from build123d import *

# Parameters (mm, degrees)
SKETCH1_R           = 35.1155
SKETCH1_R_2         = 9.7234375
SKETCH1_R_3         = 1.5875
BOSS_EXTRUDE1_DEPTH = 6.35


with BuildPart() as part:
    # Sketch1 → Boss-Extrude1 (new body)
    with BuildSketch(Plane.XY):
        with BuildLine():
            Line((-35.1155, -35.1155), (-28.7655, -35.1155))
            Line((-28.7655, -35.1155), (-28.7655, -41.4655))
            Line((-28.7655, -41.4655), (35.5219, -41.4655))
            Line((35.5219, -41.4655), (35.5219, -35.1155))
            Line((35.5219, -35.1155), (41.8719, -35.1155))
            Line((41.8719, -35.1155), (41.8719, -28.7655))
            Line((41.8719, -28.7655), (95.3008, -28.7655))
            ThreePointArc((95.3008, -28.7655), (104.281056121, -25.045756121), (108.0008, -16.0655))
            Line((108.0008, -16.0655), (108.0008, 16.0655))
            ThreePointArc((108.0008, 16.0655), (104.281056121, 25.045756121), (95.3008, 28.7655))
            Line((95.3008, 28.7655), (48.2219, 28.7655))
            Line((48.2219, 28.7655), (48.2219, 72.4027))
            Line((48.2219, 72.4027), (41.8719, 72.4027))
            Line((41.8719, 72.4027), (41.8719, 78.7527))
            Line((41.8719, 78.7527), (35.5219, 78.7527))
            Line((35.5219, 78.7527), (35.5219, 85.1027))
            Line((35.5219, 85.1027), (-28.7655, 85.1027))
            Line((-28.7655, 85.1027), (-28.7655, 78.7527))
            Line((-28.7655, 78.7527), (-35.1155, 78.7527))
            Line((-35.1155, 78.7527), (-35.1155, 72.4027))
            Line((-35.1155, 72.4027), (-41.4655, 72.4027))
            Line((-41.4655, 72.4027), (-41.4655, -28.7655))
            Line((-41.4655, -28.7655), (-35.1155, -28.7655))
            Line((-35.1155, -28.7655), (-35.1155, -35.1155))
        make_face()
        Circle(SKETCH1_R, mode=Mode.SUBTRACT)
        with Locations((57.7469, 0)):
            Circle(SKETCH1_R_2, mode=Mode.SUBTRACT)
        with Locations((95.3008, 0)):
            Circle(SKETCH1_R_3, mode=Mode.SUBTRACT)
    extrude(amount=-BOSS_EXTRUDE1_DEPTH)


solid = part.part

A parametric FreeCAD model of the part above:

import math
import FreeCAD as App
import Part
import Sketcher

V = App.Vector
Q = App.Units.Quantity

doc = App.newDocument("Part")
body = doc.addObject("PartDesign::Body", "Body")

# Sketch on XY plane
sketch1 = body.newObject("Sketcher::SketchObject", "Sketch")
sketch1.AttachmentSupport = (doc.getObject("XY_Plane"), [""])
sketch1.MapMode = "FlatFace"
sketch1.addGeometry(Part.LineSegment(V(-35.1155, -35.1155, 0), V(-28.7655, -35.1155, 0)), False)
sketch1.addGeometry(Part.LineSegment(V(-28.7655, -35.1155, 0), V(-28.7655, -41.4655, 0)), False)
sketch1.addGeometry(Part.LineSegment(V(-28.7655, -41.4655, 0), V(35.5219, -41.4655, 0)), False)
sketch1.addGeometry(Part.LineSegment(V(35.5219, -41.4655, 0), V(35.5219, -35.1155, 0)), False)
sketch1.addGeometry(Part.LineSegment(V(35.5219, -35.1155, 0), V(41.8719, -35.1155, 0)), False)
sketch1.addGeometry(Part.LineSegment(V(41.8719, -35.1155, 0), V(41.8719, -28.7655, 0)), False)
sketch1.addGeometry(Part.LineSegment(V(41.8719, -28.7655, 0), V(95.3008, -28.7655, 0)), False)
sketch1.addGeometry(Part.ArcOfCircle(Part.Circle(V(95.3008, -16.0655, 0), V(0, 0, 1), 12.7), math.radians(-90), math.radians(0)), False)
sketch1.addGeometry(Part.LineSegment(V(108.0008, -16.0655, 0), V(108.0008, 16.0655, 0)), False)
sketch1.addGeometry(Part.ArcOfCircle(Part.Circle(V(95.3008, 16.0655, 0), V(0, 0, 1), 12.7), math.radians(0), math.radians(90)), False)
sketch1.addGeometry(Part.LineSegment(V(95.3008, 28.7655, 0), V(48.2219, 28.7655, 0)), False)
sketch1.addGeometry(Part.LineSegment(V(48.2219, 28.7655, 0), V(48.2219, 72.4027, 0)), False)
sketch1.addGeometry(Part.LineSegment(V(48.2219, 72.4027, 0), V(41.8719, 72.4027, 0)), False)
sketch1.addGeometry(Part.LineSegment(V(41.8719, 72.4027, 0), V(41.8719, 78.7527, 0)), False)
sketch1.addGeometry(Part.LineSegment(V(41.8719, 78.7527, 0), V(35.5219, 78.7527, 0)), False)
sketch1.addGeometry(Part.LineSegment(V(35.5219, 78.7527, 0), V(35.5219, 85.1027, 0)), False)
sketch1.addGeometry(Part.LineSegment(V(35.5219, 85.1027, 0), V(-28.7655, 85.1027, 0)), False)
sketch1.addGeometry(Part.LineSegment(V(-28.7655, 85.1027, 0), V(-28.7655, 78.7527, 0)), False)
sketch1.addGeometry(Part.LineSegment(V(-28.7655, 78.7527, 0), V(-35.1155, 78.7527, 0)), False)
sketch1.addGeometry(Part.LineSegment(V(-35.1155, 78.7527, 0), V(-35.1155, 72.4027, 0)), False)
sketch1.addGeometry(Part.LineSegment(V(-35.1155, 72.4027, 0), V(-41.4655, 72.4027, 0)), False)
sketch1.addGeometry(Part.LineSegment(V(-41.4655, 72.4027, 0), V(-41.4655, -28.7655, 0)), False)
sketch1.addGeometry(Part.LineSegment(V(-41.4655, -28.7655, 0), V(-35.1155, -28.7655, 0)), False)
sketch1.addGeometry(Part.LineSegment(V(-35.1155, -28.7655, 0), V(-35.1155, -35.1155, 0)), False)
sketch1.addGeometry(Part.Circle(V(0, 0, 0), V(0, 0, 1), 35.1155), False)
sketch1.addGeometry(Part.Circle(V(57.7469, 0, 0), V(0, 0, 1), 9.723437), False)
sketch1.addGeometry(Part.Circle(V(95.3008, 0, 0), V(0, 0, 1), 1.5875), False)
sketch1.addConstraint(Sketcher.Constraint("Coincident", 0, 2, 1, 1))
sketch1.addConstraint(Sketcher.Constraint("Coincident", 1, 2, 2, 1))
sketch1.addConstraint(Sketcher.Constraint("Coincident", 2, 2, 3, 1))
sketch1.addConstraint(Sketcher.Constraint("Coincident", 3, 2, 4, 1))
sketch1.addConstraint(Sketcher.Constraint("Coincident", 4, 2, 5, 1))
sketch1.addConstraint(Sketcher.Constraint("Coincident", 5, 2, 6, 1))
sketch1.addConstraint(Sketcher.Constraint("Tangent", 6, 2, 7, 1))
sketch1.addConstraint(Sketcher.Constraint("Tangent", 7, 2, 8, 1))
sketch1.addConstraint(Sketcher.Constraint("Tangent", 8, 2, 9, 1))
sketch1.addConstraint(Sketcher.Constraint("Tangent", 9, 2, 10, 1))
sketch1.addConstraint(Sketcher.Constraint("Coincident", 10, 2, 11, 1))
sketch1.addConstraint(Sketcher.Constraint("Coincident", 11, 2, 12, 1))
sketch1.addConstraint(Sketcher.Constraint("Coincident", 12, 2, 13, 1))
sketch1.addConstraint(Sketcher.Constraint("Coincident", 13, 2, 14, 1))
sketch1.addConstraint(Sketcher.Constraint("Coincident", 14, 2, 15, 1))
sketch1.addConstraint(Sketcher.Constraint("Coincident", 15, 2, 16, 1))
sketch1.addConstraint(Sketcher.Constraint("Coincident", 16, 2, 17, 1))
sketch1.addConstraint(Sketcher.Constraint("Coincident", 17, 2, 18, 1))
sketch1.addConstraint(Sketcher.Constraint("Coincident", 18, 2, 19, 1))
sketch1.addConstraint(Sketcher.Constraint("Coincident", 19, 2, 20, 1))
sketch1.addConstraint(Sketcher.Constraint("Coincident", 20, 2, 21, 1))
sketch1.addConstraint(Sketcher.Constraint("Coincident", 21, 2, 22, 1))
sketch1.addConstraint(Sketcher.Constraint("Coincident", 22, 2, 23, 1))
sketch1.addConstraint(Sketcher.Constraint("Coincident", 23, 2, 0, 1))
sketch1.addConstraint(Sketcher.Constraint("Horizontal", 0))
sketch1.addConstraint(Sketcher.Constraint("Vertical", 1))
sketch1.addConstraint(Sketcher.Constraint("Horizontal", 2))
sketch1.addConstraint(Sketcher.Constraint("Vertical", 3))
sketch1.addConstraint(Sketcher.Constraint("Horizontal", 4))
sketch1.addConstraint(Sketcher.Constraint("Vertical", 5))
sketch1.addConstraint(Sketcher.Constraint("Horizontal", 6))
sketch1.addConstraint(Sketcher.Constraint("Vertical", 8))
sketch1.addConstraint(Sketcher.Constraint("Horizontal", 10))
sketch1.addConstraint(Sketcher.Constraint("Vertical", 11))
sketch1.addConstraint(Sketcher.Constraint("Horizontal", 12))
sketch1.addConstraint(Sketcher.Constraint("Vertical", 13))
sketch1.addConstraint(Sketcher.Constraint("Horizontal", 14))
sketch1.addConstraint(Sketcher.Constraint("Vertical", 15))
sketch1.addConstraint(Sketcher.Constraint("Horizontal", 16))
sketch1.addConstraint(Sketcher.Constraint("Vertical", 17))
sketch1.addConstraint(Sketcher.Constraint("Horizontal", 18))
sketch1.addConstraint(Sketcher.Constraint("Vertical", 19))
sketch1.addConstraint(Sketcher.Constraint("Horizontal", 20))
sketch1.addConstraint(Sketcher.Constraint("Vertical", 21))
sketch1.addConstraint(Sketcher.Constraint("Horizontal", 22))
sketch1.addConstraint(Sketcher.Constraint("Vertical", 23))
sketch1.addConstraint(Sketcher.Constraint("Coincident", 24, 3, -1, 1))
sketch1.addConstraint(Sketcher.Constraint("Equal", 7, 9))
sketch1.addConstraint(Sketcher.Constraint("PointOnObject", 25, 3, -1))
sketch1.addConstraint(Sketcher.Constraint("PointOnObject", 26, 3, -1))
sketch1.addConstraint(Sketcher.Constraint("Horizontal", 0, 2, 3, 2))
sketch1.addConstraint(Sketcher.Constraint("Horizontal", 14, 2, 17, 2))
sketch1.addConstraint(Sketcher.Constraint("Horizontal", 12, 2, 19, 2))
sketch1.addConstraint(Sketcher.Constraint("Horizontal", 6, 2, 21, 2))
sketch1.addConstraint(Sketcher.Constraint("Vertical", 9, 3, 26, 3))
sketch1.addConstraint(Sketcher.Constraint("Vertical", 5, 2, 12, 2))
sketch1.addConstraint(Sketcher.Constraint("Vertical", 3, 2, 14, 2))
sketch1.addConstraint(Sketcher.Constraint("Vertical", 1, 2, 16, 2))
sketch1.addConstraint(Sketcher.Constraint("Vertical", 19, 2, 22, 2))
sketch1.addConstraint(Sketcher.Constraint("Equal", 0, 4))
sketch1.addConstraint(Sketcher.Constraint("Equal", 4, 12))
sketch1.addConstraint(Sketcher.Constraint("Equal", 18, 20))
sketch1.addConstraint(Sketcher.Constraint("Equal", 22, 1))
sketch1.addConstraint(Sketcher.Constraint("Equal", 3, 5))
sketch1.addConstraint(Sketcher.Constraint("Equal", 5, 13))
sketch1.addConstraint(Sketcher.Constraint("Equal", 13, 15))
sketch1.addConstraint(Sketcher.Constraint("Radius", 7, Q("0.5 in")))
sketch1.addConstraint(Sketcher.Constraint("Diameter", 24, Q("2.765 in")))
sketch1.addConstraint(Sketcher.Constraint("Diameter", 25, Q("0.765625 in")))
sketch1.addConstraint(Sketcher.Constraint("Diameter", 26, Q("0.125 in")))
sketch1.addConstraint(Sketcher.Constraint("DistanceY", 1, 2, 7, 3, Q("1 in")))
sketch1.addConstraint(Sketcher.Constraint("DistanceX", 2, 1, 2, 2, Q("2.531 in")))
sketch1.addConstraint(Sketcher.Constraint("DistanceY", 8, 1, 8, 2, Q("1.265 in")))
sketch1.addConstraint(Sketcher.Constraint("DistanceY", 11, 1, 11, 2, Q("1.718 in")))
sketch1.addConstraint(Sketcher.Constraint("DistanceX", 6, 1, 6, 2, Q("2.1035 in")))
sketch1.addConstraint(Sketcher.Constraint("DistanceX", -1, 1, 7, 3, Q("3.752 in")))
sketch1.addConstraint(Sketcher.Constraint("DistanceX", 0, 2, 25, 3, Q("3.406 in")))
sketch1.addConstraint(Sketcher.Constraint("DistanceY", 7, 3, -1, 1, Q("0.6325 in")))
pad1 = body.newObject("PartDesign::Pad", "Pad")
pad1.Profile = sketch1
pad1.Length = Q("0.25 in")
pad1.Reversed = True

doc.recompute()
